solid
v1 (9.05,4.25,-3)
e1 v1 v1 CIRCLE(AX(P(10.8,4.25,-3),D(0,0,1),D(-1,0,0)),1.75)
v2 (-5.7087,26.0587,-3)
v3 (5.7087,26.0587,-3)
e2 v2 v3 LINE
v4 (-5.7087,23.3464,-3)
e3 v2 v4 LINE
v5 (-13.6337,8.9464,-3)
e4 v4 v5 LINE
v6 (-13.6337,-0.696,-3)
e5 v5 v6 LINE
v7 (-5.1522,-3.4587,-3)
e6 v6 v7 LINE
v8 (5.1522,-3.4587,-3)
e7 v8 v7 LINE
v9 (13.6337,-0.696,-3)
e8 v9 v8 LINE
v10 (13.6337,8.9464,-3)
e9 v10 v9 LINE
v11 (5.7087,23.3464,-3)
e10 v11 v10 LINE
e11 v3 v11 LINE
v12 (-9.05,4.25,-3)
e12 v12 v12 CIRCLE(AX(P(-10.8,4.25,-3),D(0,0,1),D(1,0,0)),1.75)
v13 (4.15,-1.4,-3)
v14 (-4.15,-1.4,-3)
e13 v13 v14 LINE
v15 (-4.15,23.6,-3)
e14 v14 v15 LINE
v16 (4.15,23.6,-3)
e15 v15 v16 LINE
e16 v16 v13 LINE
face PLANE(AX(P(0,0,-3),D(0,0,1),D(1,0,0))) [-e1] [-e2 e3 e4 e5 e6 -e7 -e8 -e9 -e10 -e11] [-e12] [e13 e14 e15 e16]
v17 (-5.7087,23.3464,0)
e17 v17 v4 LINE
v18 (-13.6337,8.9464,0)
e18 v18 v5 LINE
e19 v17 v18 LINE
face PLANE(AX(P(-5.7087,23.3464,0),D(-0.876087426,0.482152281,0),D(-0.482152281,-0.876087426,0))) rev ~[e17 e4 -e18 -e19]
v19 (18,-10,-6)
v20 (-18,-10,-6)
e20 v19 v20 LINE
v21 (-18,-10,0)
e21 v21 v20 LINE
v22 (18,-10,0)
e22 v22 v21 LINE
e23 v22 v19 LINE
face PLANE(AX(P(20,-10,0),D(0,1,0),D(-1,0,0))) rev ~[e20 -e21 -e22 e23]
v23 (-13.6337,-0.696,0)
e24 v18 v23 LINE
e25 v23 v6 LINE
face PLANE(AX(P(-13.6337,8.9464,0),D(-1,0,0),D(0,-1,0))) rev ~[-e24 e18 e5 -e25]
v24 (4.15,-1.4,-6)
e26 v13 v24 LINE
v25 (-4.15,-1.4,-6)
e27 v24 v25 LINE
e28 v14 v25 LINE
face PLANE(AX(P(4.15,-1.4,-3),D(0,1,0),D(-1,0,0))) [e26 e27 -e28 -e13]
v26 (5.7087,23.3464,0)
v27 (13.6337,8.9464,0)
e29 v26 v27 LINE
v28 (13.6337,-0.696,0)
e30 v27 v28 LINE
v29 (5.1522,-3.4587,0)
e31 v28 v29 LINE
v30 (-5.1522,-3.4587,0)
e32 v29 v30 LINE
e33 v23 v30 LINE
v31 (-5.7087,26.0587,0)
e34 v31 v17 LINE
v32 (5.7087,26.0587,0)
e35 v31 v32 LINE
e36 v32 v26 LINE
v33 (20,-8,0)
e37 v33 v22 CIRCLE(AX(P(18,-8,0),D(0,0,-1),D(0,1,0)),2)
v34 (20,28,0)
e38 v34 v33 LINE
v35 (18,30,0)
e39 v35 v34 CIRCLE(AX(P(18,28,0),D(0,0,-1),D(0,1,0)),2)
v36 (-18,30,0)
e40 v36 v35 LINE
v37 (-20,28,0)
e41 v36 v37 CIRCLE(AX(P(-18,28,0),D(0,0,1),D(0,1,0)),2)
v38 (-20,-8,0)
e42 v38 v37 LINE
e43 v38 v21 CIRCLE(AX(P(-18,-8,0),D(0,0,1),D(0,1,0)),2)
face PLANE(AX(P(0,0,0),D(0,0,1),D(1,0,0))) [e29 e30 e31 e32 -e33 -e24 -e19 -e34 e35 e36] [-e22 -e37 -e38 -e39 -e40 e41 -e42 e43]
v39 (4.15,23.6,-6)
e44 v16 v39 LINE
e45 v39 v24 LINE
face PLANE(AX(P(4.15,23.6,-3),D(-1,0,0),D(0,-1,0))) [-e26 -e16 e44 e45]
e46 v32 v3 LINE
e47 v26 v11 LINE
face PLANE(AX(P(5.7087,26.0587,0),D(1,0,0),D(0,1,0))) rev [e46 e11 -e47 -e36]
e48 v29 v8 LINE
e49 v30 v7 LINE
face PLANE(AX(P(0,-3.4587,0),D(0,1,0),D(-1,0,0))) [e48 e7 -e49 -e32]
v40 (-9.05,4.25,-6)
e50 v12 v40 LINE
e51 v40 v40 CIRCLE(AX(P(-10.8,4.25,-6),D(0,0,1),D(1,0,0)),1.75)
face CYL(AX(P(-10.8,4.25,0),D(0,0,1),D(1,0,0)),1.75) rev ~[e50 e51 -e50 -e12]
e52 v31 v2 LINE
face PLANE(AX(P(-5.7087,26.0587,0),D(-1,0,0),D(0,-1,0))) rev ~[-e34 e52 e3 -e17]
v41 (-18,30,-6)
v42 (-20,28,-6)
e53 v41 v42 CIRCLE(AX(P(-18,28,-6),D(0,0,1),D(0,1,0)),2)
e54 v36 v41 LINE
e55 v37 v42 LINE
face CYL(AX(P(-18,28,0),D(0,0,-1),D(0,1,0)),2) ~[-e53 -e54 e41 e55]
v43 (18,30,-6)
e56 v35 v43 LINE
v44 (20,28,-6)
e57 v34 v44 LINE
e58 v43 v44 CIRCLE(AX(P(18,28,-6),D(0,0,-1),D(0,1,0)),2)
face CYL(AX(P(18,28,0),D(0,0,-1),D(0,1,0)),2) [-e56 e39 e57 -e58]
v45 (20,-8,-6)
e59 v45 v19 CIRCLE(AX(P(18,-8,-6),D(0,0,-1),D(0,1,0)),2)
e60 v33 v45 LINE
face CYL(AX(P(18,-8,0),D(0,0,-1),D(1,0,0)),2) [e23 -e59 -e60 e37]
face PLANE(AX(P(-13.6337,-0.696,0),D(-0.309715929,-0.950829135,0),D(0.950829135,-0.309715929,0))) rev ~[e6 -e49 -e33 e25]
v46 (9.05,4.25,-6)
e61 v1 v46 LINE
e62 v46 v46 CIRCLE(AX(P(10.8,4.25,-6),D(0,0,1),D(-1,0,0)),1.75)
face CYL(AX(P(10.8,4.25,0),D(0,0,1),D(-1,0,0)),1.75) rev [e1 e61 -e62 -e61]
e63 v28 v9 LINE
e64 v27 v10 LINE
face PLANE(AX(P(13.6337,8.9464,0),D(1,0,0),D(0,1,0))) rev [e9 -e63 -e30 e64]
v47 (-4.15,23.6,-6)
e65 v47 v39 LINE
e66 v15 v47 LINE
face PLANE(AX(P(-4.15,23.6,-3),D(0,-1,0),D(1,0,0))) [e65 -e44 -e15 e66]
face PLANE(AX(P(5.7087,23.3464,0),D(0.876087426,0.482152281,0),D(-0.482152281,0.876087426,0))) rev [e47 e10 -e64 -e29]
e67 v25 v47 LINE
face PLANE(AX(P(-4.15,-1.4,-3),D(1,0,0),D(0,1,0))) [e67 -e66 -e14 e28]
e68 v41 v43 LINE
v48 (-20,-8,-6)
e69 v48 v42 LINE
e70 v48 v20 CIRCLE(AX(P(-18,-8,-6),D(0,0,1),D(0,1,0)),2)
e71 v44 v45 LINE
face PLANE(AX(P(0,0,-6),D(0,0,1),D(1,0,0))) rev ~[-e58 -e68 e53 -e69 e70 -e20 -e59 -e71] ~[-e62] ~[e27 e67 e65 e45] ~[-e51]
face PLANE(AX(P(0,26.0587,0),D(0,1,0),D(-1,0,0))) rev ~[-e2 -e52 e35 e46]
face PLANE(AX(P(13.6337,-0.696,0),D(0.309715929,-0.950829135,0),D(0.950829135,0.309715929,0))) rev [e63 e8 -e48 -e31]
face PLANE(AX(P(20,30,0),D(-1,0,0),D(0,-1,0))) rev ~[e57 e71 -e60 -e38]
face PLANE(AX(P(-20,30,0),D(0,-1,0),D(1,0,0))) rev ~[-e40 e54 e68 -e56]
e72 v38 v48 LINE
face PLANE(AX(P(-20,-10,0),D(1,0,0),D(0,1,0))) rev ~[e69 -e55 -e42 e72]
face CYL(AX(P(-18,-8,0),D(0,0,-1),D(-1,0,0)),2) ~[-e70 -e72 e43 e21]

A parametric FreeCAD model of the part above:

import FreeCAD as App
import Part
import Sketcher
from FreeCAD import Vector


def edges_at(feature, points):
    """Names of the edges that pass closest to the given points."""
    edges = feature.Shape.Edges
    near = lambda p: min(range(len(edges)), key=lambda i: edges[i].distToShape(Part.Vertex(*p))[0])
    return sorted({f"Edge{near(p) + 1}" for p in points})


def add_polygon(sketch, points):
    """Adds a closed chain of lines whose ends are joined by coincident constraints."""
    first, n = sketch.GeometryCount, len(points)
    for a, b in zip(points, points[1:] + points[:1]):
        sketch.addGeometry(Part.LineSegment(App.Vector(*a, 0), App.Vector(*b, 0)), False)
    for i in range(n):
        sketch.addConstraint(Sketcher.Constraint("Coincident", first + i, 2, first + (i + 1) % n, 1))

doc = App.newDocument("Part")
body = doc.addObject("PartDesign::Body", "Body")

sketch1 = doc.addObject("Sketcher::SketchObject", "Sketch")
body.addObject(sketch1)
sketch1.AttachmentSupport = (doc.XY_Plane, [""])
sketch1.MapMode = "FlatFace"
add_polygon(sketch1, [(20, 30), (-20, 30), (-20, -10), (20, -10)])
sketch1.addConstraint([
    Sketcher.Constraint("Horizontal", 0),
    Sketcher.Constraint("Vertical", 1),
    Sketcher.Constraint("Horizontal", 2),
    Sketcher.Constraint("Vertical", 3),
    Sketcher.Constraint("Equal", 2, 1),
    Sketcher.Constraint("DistanceX", 0, 2, 0, 1, 40.0),
    Sketcher.Constraint("DistanceY", 1, 2, -1, 1, 10.0),
    Sketcher.Constraint("DistanceX", 0, 2, -1, 1, 20.0),
])
pad1 = doc.addObject("PartDesign::Pad", "Pad")
body.addObject(pad1)
pad1.Profile = sketch1
pad1.Length = 6
pad1.Reversed = True

sketch2 = doc.addObject("Sketcher::SketchObject", "Sketch001")
body.addObject(sketch2)
sketch2.AttachmentSupport = (doc.XY_Plane, [""])
sketch2.MapMode = "FlatFace"
add_polygon(sketch2, [(0, -3.4587), (0, 26.0587), (-5.7087, 26.0587), (-5.7087, 23.3464), (-13.6337, 8.9464), (-13.6337, -0.696), (-5.1522, -3.4587)])
sketch2.addGeometry(Part.Circle(Vector(-10.8, 4.25, 0), Vector(0, 0, 1), 1.25), False)
sketch2.addConstraint([
    Sketcher.Constraint("Vertical", 0),
    Sketcher.Constraint("Horizontal", 1),
    Sketcher.Constraint("Vertical", 2),
    Sketcher.Constraint("Vertical", 4),
    Sketcher.Constraint("Horizontal", 6),
    Sketcher.Constraint("PointOnObject", 0, 2, -2),
    Sketcher.Constraint("Diameter", 7, 2.5),
    Sketcher.Constraint("DistanceX", 7, 3, -1, 1, 10.8),
    Sketcher.Constraint("DistanceY", 3, 2, 2, 2, 14.4),
    Sketcher.Constraint("Distance", 5, 8.92),
    Sketcher.Constraint("DistanceY", -1, 1, 7, 3, 4.25),
    Sketcher.Constraint("DistanceX", 1, 2, 1, 1, 5.7087),
    Sketcher.Constraint("DistanceX", 6, 1, 6, 2, 5.1522),
    Sketcher.Constraint("DistanceY", 0, 1, 0, 2, 29.5174),
    Sketcher.Constraint("DistanceY", 2, 2, 2, 1, 2.7123),
    Sketcher.Constraint("DistanceY", 4, 2, 4, 1, 9.6424),
    Sketcher.Constraint("DistanceY", 4, 2, -1, 1, 0.696),
])
pocket1 = doc.addObject("PartDesign::Pocket", "Pocket")
body.addObject(pocket1)
pocket1.Profile = sketch2
pocket1.Length = 3

sketch3 = doc.addObject("Sketcher::SketchObject", "Sketch002")
body.addObject(sketch3)
sketch3.AttachmentSupport = (doc.XY_Plane, [""])
sketch3.MapMode = "FlatFace"
sketch3.addGeometry(Part.Circle(Vector(-10.8, 4.25, 0), Vector(0, 0, 1), 1.75), False)
sketch3.addConstraint([
    Sketcher.Constraint("Diameter", 0, 3.5),
    Sketcher.Constraint("DistanceX", 0, 3, -1, 1, 10.8),
    Sketcher.Constraint("DistanceY", -1, 1, 0, 3, 4.25),
])
pocket2 = doc.addObject("PartDesign::Pocket", "Pocket001")
body.addObject(pocket2)
pocket2.Profile = sketch3
pocket2.Type = "ThroughAll"
doc.recompute()

mirrored = doc.addObject("PartDesign::Mirrored", "Mirrored")
body.addObject(mirrored)
mirrored.Originals = [pocket1, pocket2]
mirrored.MirrorPlane = (doc.YZ_Plane, [""])
body.Tip = mirrored

sketch4 = doc.addObject("Sketcher::SketchObject", "Sketch003")
body.addObject(sketch4)
sketch4.AttachmentSupport = (doc.XY_Plane, [""])
sketch4.MapMode = "FlatFace"
sketch4.AttachmentOffset = App.Placement(Vector(0, 0, -3), App.Rotation())
add_polygon(sketch4, [(4.15, 23.6), (-4.15, 23.6), (-4.15, -1.4), (4.15, -1.4)])
sketch4.addConstraint([
    Sketcher.Constraint("Horizontal", 0),
    Sketcher.Constraint("Vertical", 1),
    Sketcher.Constraint("Horizontal", 2),
    Sketcher.Constraint("Vertical", 3),
    Sketcher.Constraint("DistanceY", 1, 2, 1, 1, 25.0),
    Sketcher.Constraint("DistanceX", 0, 2, 0, 1, 8.3),
    Sketcher.Constraint("DistanceY", 1, 2, -1, 1, 1.4),
    Sketcher.Constraint("DistanceX", 0, 2, -1, 1, 4.15),
])
pocket3 = doc.addObject("PartDesign::Pocket", "Pocket002")
body.addObject(pocket3)
pocket3.Profile = sketch4
pocket3.Type = "ThroughAll"
doc.recompute()

fillet = doc.addObject("PartDesign::Fillet", "Fillet")
body.addObject(fillet)
fillet.Base = (pocket3, edges_at(pocket3, [
    (-20, 30, -3),
    (-20, -10, -3),
    (20, -10, -3),
    (20, 30, -3),
]))
fillet.Radius = 2

doc.recompute()
